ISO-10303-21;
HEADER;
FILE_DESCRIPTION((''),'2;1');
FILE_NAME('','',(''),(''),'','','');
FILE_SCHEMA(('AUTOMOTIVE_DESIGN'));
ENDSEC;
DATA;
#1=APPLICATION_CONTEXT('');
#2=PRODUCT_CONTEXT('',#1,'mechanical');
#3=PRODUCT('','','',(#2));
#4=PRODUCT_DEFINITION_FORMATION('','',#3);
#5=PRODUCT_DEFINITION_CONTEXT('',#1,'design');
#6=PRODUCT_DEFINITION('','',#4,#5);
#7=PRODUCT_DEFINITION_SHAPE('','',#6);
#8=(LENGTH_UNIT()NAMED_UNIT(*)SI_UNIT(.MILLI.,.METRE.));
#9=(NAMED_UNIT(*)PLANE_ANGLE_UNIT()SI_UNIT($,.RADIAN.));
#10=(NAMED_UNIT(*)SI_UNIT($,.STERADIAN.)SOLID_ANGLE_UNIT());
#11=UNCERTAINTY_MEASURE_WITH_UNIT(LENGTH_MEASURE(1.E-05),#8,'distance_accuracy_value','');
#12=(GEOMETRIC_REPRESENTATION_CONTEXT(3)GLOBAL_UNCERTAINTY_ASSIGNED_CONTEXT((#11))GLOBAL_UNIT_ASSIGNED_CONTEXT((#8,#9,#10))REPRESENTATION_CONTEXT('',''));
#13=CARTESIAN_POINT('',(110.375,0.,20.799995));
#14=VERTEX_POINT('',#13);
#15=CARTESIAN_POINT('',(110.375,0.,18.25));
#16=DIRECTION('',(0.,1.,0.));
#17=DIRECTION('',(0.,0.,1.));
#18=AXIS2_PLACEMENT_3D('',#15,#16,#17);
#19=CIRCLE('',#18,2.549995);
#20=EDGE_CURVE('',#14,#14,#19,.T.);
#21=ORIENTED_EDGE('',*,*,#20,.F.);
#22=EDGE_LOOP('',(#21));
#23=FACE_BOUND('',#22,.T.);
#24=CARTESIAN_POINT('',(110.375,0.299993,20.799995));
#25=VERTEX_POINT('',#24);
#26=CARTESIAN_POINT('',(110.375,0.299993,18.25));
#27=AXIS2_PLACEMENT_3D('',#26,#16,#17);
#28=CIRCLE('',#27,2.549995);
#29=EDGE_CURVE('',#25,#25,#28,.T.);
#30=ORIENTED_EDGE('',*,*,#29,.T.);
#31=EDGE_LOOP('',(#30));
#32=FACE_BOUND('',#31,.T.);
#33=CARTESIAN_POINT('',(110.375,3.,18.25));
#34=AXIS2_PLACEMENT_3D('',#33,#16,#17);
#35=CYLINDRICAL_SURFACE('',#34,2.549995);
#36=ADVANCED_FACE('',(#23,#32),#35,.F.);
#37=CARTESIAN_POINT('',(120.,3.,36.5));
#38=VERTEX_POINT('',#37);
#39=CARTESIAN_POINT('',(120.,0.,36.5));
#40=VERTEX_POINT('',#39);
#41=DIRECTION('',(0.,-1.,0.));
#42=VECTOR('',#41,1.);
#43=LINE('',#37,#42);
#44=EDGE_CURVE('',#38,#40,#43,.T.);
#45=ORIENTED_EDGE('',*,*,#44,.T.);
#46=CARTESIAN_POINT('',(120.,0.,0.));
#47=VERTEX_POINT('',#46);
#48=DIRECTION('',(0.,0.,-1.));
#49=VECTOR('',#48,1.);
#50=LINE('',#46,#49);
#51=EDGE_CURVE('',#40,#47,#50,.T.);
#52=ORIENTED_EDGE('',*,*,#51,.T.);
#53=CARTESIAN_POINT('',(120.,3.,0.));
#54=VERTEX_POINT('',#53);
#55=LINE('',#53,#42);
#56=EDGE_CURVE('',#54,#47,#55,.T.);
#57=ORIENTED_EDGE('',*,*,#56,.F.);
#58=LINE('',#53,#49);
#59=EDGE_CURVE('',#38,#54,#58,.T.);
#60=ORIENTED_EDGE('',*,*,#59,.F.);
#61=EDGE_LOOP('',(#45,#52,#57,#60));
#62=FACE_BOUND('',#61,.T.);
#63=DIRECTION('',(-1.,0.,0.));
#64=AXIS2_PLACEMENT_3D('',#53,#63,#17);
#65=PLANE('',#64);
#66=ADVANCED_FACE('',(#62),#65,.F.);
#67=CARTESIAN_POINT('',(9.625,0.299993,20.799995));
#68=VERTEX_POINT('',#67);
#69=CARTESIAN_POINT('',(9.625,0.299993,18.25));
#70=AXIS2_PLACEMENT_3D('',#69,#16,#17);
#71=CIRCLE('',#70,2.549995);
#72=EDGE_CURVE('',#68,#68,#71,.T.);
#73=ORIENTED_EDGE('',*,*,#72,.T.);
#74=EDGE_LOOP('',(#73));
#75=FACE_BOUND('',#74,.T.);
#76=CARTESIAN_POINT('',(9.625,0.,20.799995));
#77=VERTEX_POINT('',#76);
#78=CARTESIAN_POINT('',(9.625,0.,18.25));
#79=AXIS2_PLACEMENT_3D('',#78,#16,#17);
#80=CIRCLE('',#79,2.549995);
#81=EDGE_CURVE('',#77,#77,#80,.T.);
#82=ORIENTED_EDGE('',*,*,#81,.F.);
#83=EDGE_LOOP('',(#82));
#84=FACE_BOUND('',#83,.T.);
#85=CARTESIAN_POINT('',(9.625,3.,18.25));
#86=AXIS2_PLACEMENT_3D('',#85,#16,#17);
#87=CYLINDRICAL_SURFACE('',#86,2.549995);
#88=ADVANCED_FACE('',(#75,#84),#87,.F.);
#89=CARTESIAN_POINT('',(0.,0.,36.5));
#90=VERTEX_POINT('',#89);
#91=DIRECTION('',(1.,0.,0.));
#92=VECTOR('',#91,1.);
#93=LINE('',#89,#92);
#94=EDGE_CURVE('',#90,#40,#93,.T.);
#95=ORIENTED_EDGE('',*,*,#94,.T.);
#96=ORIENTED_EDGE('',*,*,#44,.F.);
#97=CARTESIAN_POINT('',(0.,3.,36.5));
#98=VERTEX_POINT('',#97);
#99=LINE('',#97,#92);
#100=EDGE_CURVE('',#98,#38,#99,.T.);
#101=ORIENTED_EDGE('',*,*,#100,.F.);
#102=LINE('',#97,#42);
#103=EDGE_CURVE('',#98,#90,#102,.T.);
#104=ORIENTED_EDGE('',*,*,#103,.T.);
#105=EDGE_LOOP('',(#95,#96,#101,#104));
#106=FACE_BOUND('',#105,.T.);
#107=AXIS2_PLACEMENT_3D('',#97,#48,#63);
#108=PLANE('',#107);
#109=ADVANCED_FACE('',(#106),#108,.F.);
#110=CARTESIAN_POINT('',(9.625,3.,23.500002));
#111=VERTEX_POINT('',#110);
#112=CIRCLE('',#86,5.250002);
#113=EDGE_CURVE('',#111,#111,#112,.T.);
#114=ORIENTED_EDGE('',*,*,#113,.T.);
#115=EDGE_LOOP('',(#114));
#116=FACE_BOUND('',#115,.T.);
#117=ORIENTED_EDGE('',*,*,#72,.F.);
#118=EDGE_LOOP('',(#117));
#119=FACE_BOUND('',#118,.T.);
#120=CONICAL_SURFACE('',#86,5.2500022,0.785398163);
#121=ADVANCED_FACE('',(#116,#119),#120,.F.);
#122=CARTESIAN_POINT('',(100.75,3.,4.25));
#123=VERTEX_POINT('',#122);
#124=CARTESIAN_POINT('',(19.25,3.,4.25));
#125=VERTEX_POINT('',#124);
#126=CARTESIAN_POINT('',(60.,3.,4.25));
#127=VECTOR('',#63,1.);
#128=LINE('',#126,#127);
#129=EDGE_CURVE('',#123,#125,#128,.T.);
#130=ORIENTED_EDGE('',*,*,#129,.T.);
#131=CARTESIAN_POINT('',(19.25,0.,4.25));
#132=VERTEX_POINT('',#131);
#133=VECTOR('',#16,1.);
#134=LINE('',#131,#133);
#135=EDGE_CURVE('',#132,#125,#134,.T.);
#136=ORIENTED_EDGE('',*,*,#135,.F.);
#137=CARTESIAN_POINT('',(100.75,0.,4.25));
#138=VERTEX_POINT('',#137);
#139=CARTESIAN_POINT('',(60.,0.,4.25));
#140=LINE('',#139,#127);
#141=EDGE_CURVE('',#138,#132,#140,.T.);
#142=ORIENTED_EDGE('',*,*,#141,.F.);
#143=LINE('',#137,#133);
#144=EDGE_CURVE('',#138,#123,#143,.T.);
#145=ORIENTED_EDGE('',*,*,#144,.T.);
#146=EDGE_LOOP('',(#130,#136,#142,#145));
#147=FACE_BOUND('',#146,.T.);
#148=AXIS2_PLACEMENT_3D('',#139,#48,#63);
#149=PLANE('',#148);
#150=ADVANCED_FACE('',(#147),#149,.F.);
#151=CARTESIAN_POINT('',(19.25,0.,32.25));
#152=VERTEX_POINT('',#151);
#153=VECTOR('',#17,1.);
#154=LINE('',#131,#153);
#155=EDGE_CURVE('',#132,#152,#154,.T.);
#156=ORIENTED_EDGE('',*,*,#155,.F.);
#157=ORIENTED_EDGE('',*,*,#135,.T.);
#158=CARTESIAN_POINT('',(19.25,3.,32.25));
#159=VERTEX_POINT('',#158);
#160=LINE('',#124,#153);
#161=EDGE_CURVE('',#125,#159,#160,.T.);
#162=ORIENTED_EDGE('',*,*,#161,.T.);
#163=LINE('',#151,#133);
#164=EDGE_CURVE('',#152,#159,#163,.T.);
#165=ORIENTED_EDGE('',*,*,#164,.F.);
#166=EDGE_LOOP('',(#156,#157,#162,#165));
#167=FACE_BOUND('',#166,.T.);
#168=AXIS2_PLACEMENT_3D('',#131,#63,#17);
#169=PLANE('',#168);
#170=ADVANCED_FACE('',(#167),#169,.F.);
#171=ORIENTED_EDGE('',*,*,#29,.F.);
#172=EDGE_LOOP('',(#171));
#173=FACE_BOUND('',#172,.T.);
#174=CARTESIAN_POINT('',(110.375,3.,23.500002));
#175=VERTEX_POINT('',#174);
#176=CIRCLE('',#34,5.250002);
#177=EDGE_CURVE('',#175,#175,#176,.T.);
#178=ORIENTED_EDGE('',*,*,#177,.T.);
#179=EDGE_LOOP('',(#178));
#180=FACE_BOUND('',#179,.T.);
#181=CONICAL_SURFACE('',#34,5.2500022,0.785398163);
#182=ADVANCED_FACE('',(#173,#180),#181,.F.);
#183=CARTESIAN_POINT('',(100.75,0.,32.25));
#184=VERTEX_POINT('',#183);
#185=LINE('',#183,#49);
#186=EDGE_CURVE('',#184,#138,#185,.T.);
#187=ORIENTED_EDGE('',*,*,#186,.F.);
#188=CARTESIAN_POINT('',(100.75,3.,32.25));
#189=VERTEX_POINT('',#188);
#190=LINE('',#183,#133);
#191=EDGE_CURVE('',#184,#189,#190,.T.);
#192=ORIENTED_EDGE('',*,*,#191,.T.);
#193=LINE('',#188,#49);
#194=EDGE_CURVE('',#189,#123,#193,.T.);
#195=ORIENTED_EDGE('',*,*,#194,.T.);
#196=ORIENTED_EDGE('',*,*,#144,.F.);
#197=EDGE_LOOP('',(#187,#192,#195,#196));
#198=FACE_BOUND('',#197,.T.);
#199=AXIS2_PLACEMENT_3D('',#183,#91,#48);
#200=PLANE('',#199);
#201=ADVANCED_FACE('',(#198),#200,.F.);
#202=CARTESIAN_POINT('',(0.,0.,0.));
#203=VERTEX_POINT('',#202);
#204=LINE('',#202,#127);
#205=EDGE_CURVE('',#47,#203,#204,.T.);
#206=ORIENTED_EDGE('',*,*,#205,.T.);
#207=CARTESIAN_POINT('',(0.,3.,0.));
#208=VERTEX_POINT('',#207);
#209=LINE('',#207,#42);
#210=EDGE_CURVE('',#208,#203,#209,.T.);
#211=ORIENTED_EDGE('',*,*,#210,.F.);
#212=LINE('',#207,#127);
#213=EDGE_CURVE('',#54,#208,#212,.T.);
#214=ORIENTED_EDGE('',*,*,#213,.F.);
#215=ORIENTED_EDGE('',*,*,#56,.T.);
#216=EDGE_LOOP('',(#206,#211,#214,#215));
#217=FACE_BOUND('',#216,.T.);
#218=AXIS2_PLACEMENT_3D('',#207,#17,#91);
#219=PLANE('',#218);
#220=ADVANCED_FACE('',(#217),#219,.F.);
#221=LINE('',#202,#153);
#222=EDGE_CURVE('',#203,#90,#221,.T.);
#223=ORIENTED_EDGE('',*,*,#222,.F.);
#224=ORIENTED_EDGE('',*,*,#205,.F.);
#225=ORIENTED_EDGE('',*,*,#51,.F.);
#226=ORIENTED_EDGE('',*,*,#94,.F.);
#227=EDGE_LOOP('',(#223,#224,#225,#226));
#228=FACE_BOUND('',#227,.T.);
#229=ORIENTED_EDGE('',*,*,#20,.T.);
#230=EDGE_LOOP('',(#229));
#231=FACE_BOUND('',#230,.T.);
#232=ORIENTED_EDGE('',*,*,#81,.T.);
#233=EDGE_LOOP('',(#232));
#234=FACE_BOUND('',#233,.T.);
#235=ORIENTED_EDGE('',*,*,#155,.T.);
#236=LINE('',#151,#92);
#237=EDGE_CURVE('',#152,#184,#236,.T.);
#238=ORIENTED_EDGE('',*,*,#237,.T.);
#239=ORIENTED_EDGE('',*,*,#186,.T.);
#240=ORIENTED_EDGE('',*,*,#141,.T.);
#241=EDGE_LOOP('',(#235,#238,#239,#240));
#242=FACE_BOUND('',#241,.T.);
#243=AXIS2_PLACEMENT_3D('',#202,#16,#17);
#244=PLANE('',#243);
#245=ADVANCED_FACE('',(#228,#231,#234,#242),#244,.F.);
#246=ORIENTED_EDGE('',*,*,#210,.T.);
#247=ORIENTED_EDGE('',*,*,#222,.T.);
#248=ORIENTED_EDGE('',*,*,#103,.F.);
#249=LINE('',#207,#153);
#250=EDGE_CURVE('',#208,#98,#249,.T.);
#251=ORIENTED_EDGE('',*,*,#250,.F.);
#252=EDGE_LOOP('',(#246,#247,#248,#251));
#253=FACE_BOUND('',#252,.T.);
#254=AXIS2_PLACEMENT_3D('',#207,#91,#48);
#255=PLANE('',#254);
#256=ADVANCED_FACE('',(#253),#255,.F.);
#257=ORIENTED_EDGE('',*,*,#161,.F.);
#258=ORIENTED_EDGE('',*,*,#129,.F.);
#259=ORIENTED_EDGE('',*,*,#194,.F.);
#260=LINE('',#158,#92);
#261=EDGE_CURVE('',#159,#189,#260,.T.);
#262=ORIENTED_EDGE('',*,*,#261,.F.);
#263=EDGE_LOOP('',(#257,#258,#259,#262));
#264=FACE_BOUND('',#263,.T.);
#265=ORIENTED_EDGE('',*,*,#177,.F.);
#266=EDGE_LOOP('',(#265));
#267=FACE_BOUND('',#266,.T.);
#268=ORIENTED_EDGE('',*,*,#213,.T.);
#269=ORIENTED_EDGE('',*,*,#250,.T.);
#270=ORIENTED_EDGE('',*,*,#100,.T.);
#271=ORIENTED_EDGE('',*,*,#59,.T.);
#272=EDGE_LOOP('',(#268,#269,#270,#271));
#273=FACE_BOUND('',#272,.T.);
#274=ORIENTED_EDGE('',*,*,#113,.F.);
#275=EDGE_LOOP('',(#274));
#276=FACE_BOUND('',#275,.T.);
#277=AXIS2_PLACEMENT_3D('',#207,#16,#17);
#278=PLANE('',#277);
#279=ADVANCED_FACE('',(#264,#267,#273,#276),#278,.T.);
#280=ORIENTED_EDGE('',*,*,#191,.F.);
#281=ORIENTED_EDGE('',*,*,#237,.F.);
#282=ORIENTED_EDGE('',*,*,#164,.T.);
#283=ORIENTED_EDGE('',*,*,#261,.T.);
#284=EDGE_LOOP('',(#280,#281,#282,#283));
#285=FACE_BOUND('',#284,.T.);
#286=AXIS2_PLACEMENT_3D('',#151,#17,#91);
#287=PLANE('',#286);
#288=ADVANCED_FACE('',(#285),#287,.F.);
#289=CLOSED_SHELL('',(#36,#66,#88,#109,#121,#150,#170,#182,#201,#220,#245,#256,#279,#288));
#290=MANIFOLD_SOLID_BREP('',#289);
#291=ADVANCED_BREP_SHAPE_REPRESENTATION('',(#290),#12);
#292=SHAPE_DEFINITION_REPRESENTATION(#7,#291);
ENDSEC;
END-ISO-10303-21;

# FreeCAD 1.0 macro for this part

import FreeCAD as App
import Part
import Sketcher

V = App.Vector
Q = App.Units.Quantity

doc = App.newDocument("Part")
body = doc.addObject("PartDesign::Body", "Body")

# Sketch on XZ plane
sketch1 = body.newObject("Sketcher::SketchObject", "Sketch")
sketch1.AttachmentSupport = (doc.getObject("XZ_Plane"), [""])
sketch1.MapMode = "FlatFace"
sketch1.addGeometry(Part.LineSegment(V(0, 0, 0), V(0, 36.5, 0)), False)
sketch1.addGeometry(Part.LineSegment(V(0, 36.5, 0), V(120, 36.5, 0)), False)
sketch1.addGeometry(Part.LineSegment(V(120, 36.5, 0), V(120, 0, 0)), False)
sketch1.addGeometry(Part.LineSegment(V(120, 0, 0), V(0, 0, 0)), False)
sketch1.addConstraint(Sketcher.Constraint("Coincident", 0, 2, 1, 1))
sketch1.addConstraint(Sketcher.Constraint("Coincident", 1, 2, 2, 1))
sketch1.addConstraint(Sketcher.Constraint("Coincident", 2, 2, 3, 1))
sketch1.addConstraint(Sketcher.Constraint("Coincident", 3, 2, 0, 1))
sketch1.addConstraint(Sketcher.Constraint("Vertical", 0))
sketch1.addConstraint(Sketcher.Constraint("Horizontal", 1))
sketch1.addConstraint(Sketcher.Constraint("Vertical", 2))
sketch1.addConstraint(Sketcher.Constraint("Horizontal", 3))
sketch1.addConstraint(Sketcher.Constraint("Coincident", 3, 2, -1, 1))
sketch1.addConstraint(Sketcher.Constraint("DistanceX", 1, 1, 1, 2, Q("120 mm")))
sketch1.addConstraint(Sketcher.Constraint("DistanceY", 0, 1, 0, 2, Q("36.5 mm")))
pad1 = body.newObject("PartDesign::Pad", "Pad")
pad1.Profile = sketch1
pad1.Length = 3
pad1.Reversed = True

# Sketch on XZ plane
sketch2 = body.newObject("Sketcher::SketchObject", "Sketch001")
sketch2.AttachmentSupport = (doc.getObject("XZ_Plane"), [""])
sketch2.MapMode = "FlatFace"
sketch2.AttachmentOffset = App.Placement(V(0, 0, -3), App.Rotation())
sketch2.addGeometry(Part.LineSegment(V(19.25, 32.25, 0), V(100.75, 32.25, 0)), False)
sketch2.addGeometry(Part.LineSegment(V(100.75, 32.25, 0), V(100.75, 4.25, 0)), False)
sketch2.addGeometry(Part.LineSegment(V(100.75, 4.25, 0), V(19.25, 4.25, 0)), False)
sketch2.addGeometry(Part.LineSegment(V(19.25, 4.25, 0), V(19.25, 32.25, 0)), False)
sketch2.addConstraint(Sketcher.Constraint("Coincident", 0, 2, 1, 1))
sketch2.addConstraint(Sketcher.Constraint("Coincident", 1, 2, 2, 1))
sketch2.addConstraint(Sketcher.Constraint("Coincident", 2, 2, 3, 1))
sketch2.addConstraint(Sketcher.Constraint("Coincident", 3, 2, 0, 1))
sketch2.addConstraint(Sketcher.Constraint("Horizontal", 0))
sketch2.addConstraint(Sketcher.Constraint("Vertical", 1))
sketch2.addConstraint(Sketcher.Constraint("Horizontal", 2))
sketch2.addConstraint(Sketcher.Constraint("Vertical", 3))
sketch2.addConstraint(Sketcher.Constraint("DistanceY", 1, 2, 1, 1, Q("28 mm")))
sketch2.addConstraint(Sketcher.Constraint("DistanceX", 0, 1, 0, 2, Q("81.5 mm")))
sketch2.addConstraint(Sketcher.Constraint("DistanceX", -1, 1, 0, 2, Q("100.75 mm")))
sketch2.addConstraint(Sketcher.Constraint("DistanceY", -1, 1, 0, 2, Q("32.25 mm")))
pocket1 = body.newObject("PartDesign::Pocket", "Pocket")
pocket1.Profile = sketch2
pocket1.Type = "ThroughAll"
pocket1.Reversed = True

# Sketch on YZ plane
sketch3 = body.newObject("Sketcher::SketchObject", "Sketch002")
sketch3.AttachmentSupport = (doc.getObject("YZ_Plane"), [""])
sketch3.MapMode = "FlatFace"
sketch3.AttachmentOffset = App.Placement(V(0, 0, 9.625), App.Rotation())
sketch3.addGeometry(Part.LineSegment(V(0, 18.25, 0), V(3, 18.25, 0)), False)
sketch3.addGeometry(Part.LineSegment(V(3, 18.25, 0), V(3, 23.500002, 0)), False)
sketch3.addGeometry(Part.LineSegment(V(3, 23.500002, 0), V(0.299993, 20.799995, 0)), False)
sketch3.addGeometry(Part.LineSegment(V(0.299993, 20.799995, 0), V(0, 20.799995, 0)), False)
sketch3.addGeometry(Part.LineSegment(V(0, 20.799995, 0), V(0, 18.25, 0)), False)
sketch3.addGeometry(Part.LineSegment(V(3, 18.25, 0), V(0, 18.25, 0)), True)  # axis
sketch3.addConstraint(Sketcher.Constraint("Coincident", 0, 2, 1, 1))
sketch3.addConstraint(Sketcher.Constraint("Coincident", 1, 2, 2, 1))
sketch3.addConstraint(Sketcher.Constraint("Coincident", 2, 2, 3, 1))
sketch3.addConstraint(Sketcher.Constraint("Coincident", 3, 2, 4, 1))
sketch3.addConstraint(Sketcher.Constraint("Coincident", 4, 2, 0, 1))
sketch3.addConstraint(Sketcher.Constraint("Horizontal", 0))
sketch3.addConstraint(Sketcher.Constraint("Vertical", 1))
sketch3.addConstraint(Sketcher.Constraint("Horizontal", 3))
sketch3.addConstraint(Sketcher.Constraint("Vertical", 4))
sketch3.addConstraint(Sketcher.Constraint("Horizontal", 5))
sketch3.addConstraint(Sketcher.Constraint("Coincident", 5, 1, 0, 2))
sketch3.addConstraint(Sketcher.Constraint("PointOnObject", 3, 2, -2))
sketch3.addConstraint(Sketcher.Constraint("PointOnObject", 5, 2, -2))
sketch3.addConstraint(Sketcher.Constraint("DistanceX", 0, 1, 0, 2, Q("3 mm")))
sketch3.addConstraint(Sketcher.Constraint("Angle", 2, Q("-135 deg")))
sketch3.addConstraint(Sketcher.Constraint("DistanceY", -1, 1, 0, 2, Q("18.25 mm")))
sketch3.addConstraint(Sketcher.Constraint("DistanceX", 3, 2, 3, 1, Q("0.299993 mm")))
sketch3.addConstraint(Sketcher.Constraint("DistanceY", 1, 1, 1, 2, Q("5.250002 mm")))
groove = body.newObject("PartDesign::Groove", "Groove")
groove.Profile = sketch3
groove.ReferenceAxis = (sketch3, ["Axis0"])
groove.Angle = 360
doc.recompute()

linearpattern = body.newObject("PartDesign::LinearPattern", "LinearPattern")
linearpattern.Originals = [groove]
linearpattern.Direction = (doc.getObject("X_Axis"), [""])
linearpattern.Mode = "offset"
linearpattern.Offset = 100.75
linearpattern.Occurrences = 2
body.Tip = linearpattern

doc.recompute()
